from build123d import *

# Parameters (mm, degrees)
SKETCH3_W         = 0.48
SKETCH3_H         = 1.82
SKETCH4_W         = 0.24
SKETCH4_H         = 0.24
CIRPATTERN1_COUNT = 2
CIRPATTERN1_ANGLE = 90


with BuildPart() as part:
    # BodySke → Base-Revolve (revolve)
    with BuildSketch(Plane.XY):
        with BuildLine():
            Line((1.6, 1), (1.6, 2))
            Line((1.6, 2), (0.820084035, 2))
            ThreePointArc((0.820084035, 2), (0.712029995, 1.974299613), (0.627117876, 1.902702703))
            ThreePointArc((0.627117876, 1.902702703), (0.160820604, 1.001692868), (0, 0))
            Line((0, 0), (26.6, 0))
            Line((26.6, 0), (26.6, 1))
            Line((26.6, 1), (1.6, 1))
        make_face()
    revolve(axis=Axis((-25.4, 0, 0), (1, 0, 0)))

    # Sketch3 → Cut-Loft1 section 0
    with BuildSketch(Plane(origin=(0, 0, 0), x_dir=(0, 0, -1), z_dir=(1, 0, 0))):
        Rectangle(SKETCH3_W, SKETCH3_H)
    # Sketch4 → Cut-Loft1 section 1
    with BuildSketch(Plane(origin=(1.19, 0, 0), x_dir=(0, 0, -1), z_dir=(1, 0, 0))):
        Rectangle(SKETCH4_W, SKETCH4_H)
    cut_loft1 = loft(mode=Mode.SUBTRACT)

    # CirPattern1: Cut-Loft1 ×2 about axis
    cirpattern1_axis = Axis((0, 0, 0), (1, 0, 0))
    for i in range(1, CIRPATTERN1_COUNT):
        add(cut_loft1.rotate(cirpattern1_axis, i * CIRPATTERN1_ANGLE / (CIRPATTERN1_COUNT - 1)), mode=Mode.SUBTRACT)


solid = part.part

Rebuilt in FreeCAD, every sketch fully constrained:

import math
import FreeCAD as App
import Part
import Sketcher

V = App.Vector
Q = App.Units.Quantity

doc = App.newDocument("Part")
params = doc.addObject("Spreadsheet::Sheet", "Params")
for row, (alias, value) in enumerate([
    ("sketch1_radius", "3.2 mm"),
    ("sketch1_width", "25 mm"),
    ("sketch1_height", "1 mm"),
    ("sketch1_radius2", "0.24 mm"),
    ("sketch1_width2", "26.6 mm"),
    ("revolution_angle", "360 deg"),
    ("sketch2_width", "1.82 mm"),
    ("sketch2_height", "0.48 mm"),
    ("sketch3_width", "0.24 mm"),
], start=1):
    params.set(f"A{row}", alias)
    params.set(f"B{row}", "=" + value)
    params.setAlias(f"B{row}", alias)

body = doc.addObject("PartDesign::Body", "Body")

# Sketch on XY plane
sketch1 = body.newObject("Sketcher::SketchObject", "Sketch")
sketch1.AttachmentSupport = (doc.getObject("XY_Plane"), [""])
sketch1.MapMode = "FlatFace"
sketch1.addGeometry([
    Part.LineSegment(V(1.6, 1, 0), V(1.6, 2, 0)),  # 0
    Part.LineSegment(V(1.6, 2, 0), V(0.82, 2, 0)),  # 1
    Part.ArcOfCircle(Part.Circle(V(0.82, 1.76, 0), V(0, 0, 1), 0.24), math.radians(90), math.radians(144)),  # 2
    Part.ArcOfCircle(Part.Circle(V(3.2, 0, 0), V(0, 0, 1), 3.2), math.radians(144), math.radians(180)),  # 3
    Part.LineSegment(V(0, 0, 0), V(26.6, 0, 0)),  # 4
    Part.LineSegment(V(26.6, 0, 0), V(26.6, 1, 0)),  # 5
    Part.LineSegment(V(26.6, 1, 0), V(1.6, 1, 0)),  # 6
], False)
sketch1.addConstraint([
    Sketcher.Constraint("Coincident", 0, 2, 1, 1),
    Sketcher.Constraint("Tangent", 1, 2, 2, 1),
    Sketcher.Constraint("Tangent", 2, 2, 3, 1),
    Sketcher.Constraint("Coincident", 3, 2, 4, 1),
    Sketcher.Constraint("Coincident", 4, 2, 5, 1),
    Sketcher.Constraint("Coincident", 5, 2, 6, 1),
    Sketcher.Constraint("Coincident", 6, 2, 0, 1),
    Sketcher.Constraint("Vertical", 0),
    Sketcher.Constraint("Horizontal", 1),
    Sketcher.Constraint("Horizontal", 4),
    Sketcher.Constraint("Vertical", 5),
    Sketcher.Constraint("Horizontal", 6),
    Sketcher.Constraint("Coincident", 3, 2, -1, 1),
    Sketcher.Constraint("PointOnObject", 3, 3, -1),
    Sketcher.Constraint("Equal", 0, 5),
    Sketcher.Constraint("Radius", 3, Q("3.2 mm")),
    Sketcher.Constraint("DistanceX", 6, 2, 6, 1, Q("25 mm")),
    Sketcher.Constraint("DistanceY", 0, 1, 0, 2, Q("1 mm")),
    Sketcher.Constraint("Radius", 2, Q("0.24 mm")),
    Sketcher.Constraint("DistanceX", 4, 1, 4, 2, Q("26.6 mm")),
])
sketch1.setExpression("Constraints[15]", "Params.sketch1_radius")
sketch1.setExpression("Constraints[16]", "Params.sketch1_width")
sketch1.setExpression("Constraints[17]", "Params.sketch1_height")
sketch1.setExpression("Constraints[18]", "Params.sketch1_radius2")
sketch1.setExpression("Constraints[19]", "Params.sketch1_width2")
revolution = body.newObject("PartDesign::Revolution", "Revolution")
revolution.Profile = sketch1
revolution.ReferenceAxis = (sketch1, ["H_Axis"])
revolution.setExpression("Angle", "Params.revolution_angle")

# Sketch on YZ plane
sketch2 = body.newObject("Sketcher::SketchObject", "Sketch001")
sketch2.AttachmentSupport = (doc.getObject("YZ_Plane"), [""])
sketch2.MapMode = "FlatFace"
sketch2.addGeometry([
    Part.LineSegment(V(0.91, 0.24, 0), V(-0.91, 0.24, 0)),
    Part.LineSegment(V(-0.91, 0.24, 0), V(-0.91, -0.24, 0)),
    Part.LineSegment(V(-0.91, -0.24, 0), V(0.91, -0.24, 0)),
    Part.LineSegment(V(0.91, -0.24, 0), V(0.91, 0.24, 0)),
], False)
sketch2.addConstraint([
    Sketcher.Constraint("Coincident", 0, 2, 1, 1),
    Sketcher.Constraint("Coincident", 1, 2, 2, 1),
    Sketcher.Constraint("Coincident", 2, 2, 3, 1),
    Sketcher.Constraint("Coincident", 3, 2, 0, 1),
    Sketcher.Constraint("Horizontal", 0),
    Sketcher.Constraint("Vertical", 1),
    Sketcher.Constraint("Horizontal", 2),
    Sketcher.Constraint("Vertical", 3),
    Sketcher.Constraint("Symmetric", 0, 2, 2, 2, -1, 1),
    Sketcher.Constraint("DistanceX", 0, 2, 0, 1, Q("1.82 mm")),
    Sketcher.Constraint("DistanceY", 1, 2, 1, 1, Q("0.48 mm")),
])
sketch2.setExpression("Constraints[9]", "Params.sketch2_width")
sketch2.setExpression("Constraints[10]", "Params.sketch2_height")

# Sketch on YZ plane
sketch3 = body.newObject("Sketcher::SketchObject", "Sketch002")
sketch3.AttachmentSupport = (doc.getObject("YZ_Plane"), [""])
sketch3.MapMode = "FlatFace"
sketch3.AttachmentOffset = App.Placement(V(0, 0, 1.19), App.Rotation())
sketch3.addGeometry([
    Part.LineSegment(V(0.12, 0.12, 0), V(-0.12, 0.12, 0)),
    Part.LineSegment(V(-0.12, 0.12, 0), V(-0.12, -0.12, 0)),
    Part.LineSegment(V(-0.12, -0.12, 0), V(0.12, -0.12, 0)),
    Part.LineSegment(V(0.12, -0.12, 0), V(0.12, 0.12, 0)),
], False)
sketch3.addConstraint([
    Sketcher.Constraint("Coincident", 0, 2, 1, 1),
    Sketcher.Constraint("Coincident", 1, 2, 2, 1),
    Sketcher.Constraint("Coincident", 2, 2, 3, 1),
    Sketcher.Constraint("Coincident", 3, 2, 0, 1),
    Sketcher.Constraint("Horizontal", 0),
    Sketcher.Constraint("Vertical", 1),
    Sketcher.Constraint("Horizontal", 2),
    Sketcher.Constraint("Vertical", 3),
    Sketcher.Constraint("Symmetric", 0, 2, 2, 2, -1, 1),
    Sketcher.Constraint("Equal", 2, 1),
    Sketcher.Constraint("DistanceX", 0, 2, 0, 1, Q("0.24 mm")),
])
sketch3.setExpression("Constraints[10]", "Params.sketch3_width")

subtractiveloft = body.newObject("PartDesign::SubtractiveLoft", "SubtractiveLoft")
subtractiveloft.Profile = sketch2
subtractiveloft.Sections = [sketch3]
doc.recompute()

polarpattern = body.newObject("PartDesign::PolarPattern", "PolarPattern")
polarpattern.Originals = [subtractiveloft]
polarpattern.Axis = (doc.getObject("X_Axis"), [""])
polarpattern.Angle = 90
polarpattern.Occurrences = 2
body.Tip = polarpattern

doc.recompute()
